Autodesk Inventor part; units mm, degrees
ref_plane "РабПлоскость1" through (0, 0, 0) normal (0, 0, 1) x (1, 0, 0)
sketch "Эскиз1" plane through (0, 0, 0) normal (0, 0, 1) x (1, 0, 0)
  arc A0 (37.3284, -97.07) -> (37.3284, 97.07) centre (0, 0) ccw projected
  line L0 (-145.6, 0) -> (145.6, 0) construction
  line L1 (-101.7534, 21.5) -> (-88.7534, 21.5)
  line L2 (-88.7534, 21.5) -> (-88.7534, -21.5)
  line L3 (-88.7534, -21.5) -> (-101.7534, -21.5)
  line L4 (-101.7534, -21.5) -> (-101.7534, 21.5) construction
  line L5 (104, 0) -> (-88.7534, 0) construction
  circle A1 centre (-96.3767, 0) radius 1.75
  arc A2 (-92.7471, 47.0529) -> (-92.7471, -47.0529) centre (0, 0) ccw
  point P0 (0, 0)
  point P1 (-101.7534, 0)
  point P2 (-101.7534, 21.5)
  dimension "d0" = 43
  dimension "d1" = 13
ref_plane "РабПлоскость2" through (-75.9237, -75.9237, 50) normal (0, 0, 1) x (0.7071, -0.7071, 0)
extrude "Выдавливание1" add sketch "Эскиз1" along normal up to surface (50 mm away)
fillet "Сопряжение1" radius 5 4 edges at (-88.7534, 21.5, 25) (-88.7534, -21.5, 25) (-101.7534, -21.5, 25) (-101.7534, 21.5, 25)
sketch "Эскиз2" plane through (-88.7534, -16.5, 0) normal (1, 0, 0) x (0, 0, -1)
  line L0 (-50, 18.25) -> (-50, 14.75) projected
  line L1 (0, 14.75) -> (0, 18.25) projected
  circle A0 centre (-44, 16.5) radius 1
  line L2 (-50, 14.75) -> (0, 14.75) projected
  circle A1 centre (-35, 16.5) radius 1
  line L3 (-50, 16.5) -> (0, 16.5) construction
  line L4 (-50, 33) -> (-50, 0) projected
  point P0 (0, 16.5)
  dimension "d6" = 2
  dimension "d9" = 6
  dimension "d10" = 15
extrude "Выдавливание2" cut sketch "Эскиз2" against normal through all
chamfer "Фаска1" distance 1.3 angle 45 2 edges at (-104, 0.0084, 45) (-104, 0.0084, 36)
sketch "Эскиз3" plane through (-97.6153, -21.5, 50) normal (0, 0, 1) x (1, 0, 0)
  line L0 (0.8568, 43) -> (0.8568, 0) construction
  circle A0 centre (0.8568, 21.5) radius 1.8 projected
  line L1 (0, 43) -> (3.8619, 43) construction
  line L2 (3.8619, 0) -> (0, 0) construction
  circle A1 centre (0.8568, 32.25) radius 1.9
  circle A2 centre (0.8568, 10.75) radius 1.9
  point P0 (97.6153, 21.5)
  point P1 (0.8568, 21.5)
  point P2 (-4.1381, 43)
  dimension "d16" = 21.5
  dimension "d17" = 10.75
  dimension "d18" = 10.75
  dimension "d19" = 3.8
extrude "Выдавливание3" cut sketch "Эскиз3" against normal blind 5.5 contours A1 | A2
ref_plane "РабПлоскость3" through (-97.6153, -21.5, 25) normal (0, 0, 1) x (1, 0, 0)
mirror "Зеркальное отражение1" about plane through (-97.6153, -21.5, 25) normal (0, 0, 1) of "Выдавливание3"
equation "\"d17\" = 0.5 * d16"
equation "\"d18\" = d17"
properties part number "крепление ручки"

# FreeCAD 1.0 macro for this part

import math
import FreeCAD as App
import Part
import Sketcher

V = App.Vector
Q = App.Units.Quantity


def edges_at(feature, points):
    """Names of the edges that pass closest to the given points."""
    edges = feature.Shape.Edges
    near = lambda p: min(range(len(edges)), key=lambda i: edges[i].distToShape(Part.Vertex(*p))[0])
    return sorted({f"Edge{near(p) + 1}" for p in points})

doc = App.newDocument("Part")
body = doc.addObject("PartDesign::Body", "Body")

sketch1 = body.newObject("Sketcher::SketchObject", "Sketch")
sketch1.AttachmentSupport = (doc.getObject("XY_Plane"), [""])
sketch1.MapMode = "FlatFace"
sketch1.addGeometry([
    Part.LineSegment(V(-88.7534, 21.5, 0), V(-101.7534, 21.5, 0)),
    Part.ArcOfCircle(Part.Circle(V(0, 0, 0), V(0, 0, 1), 104), math.radians(168.069167), math.radians(191.930833)),
    Part.LineSegment(V(-101.7534, -21.5, 0), V(-88.7534, -21.5, 0)),
    Part.LineSegment(V(-88.7534, -21.5, 0), V(-88.7534, 21.5, 0)),
    Part.Circle(V(-96.3767, 0, 0), V(0, 0, 1), 1.75),
], False)
sketch1.addConstraint([
    Sketcher.Constraint("Coincident", 0, 2, 1, 1),
    Sketcher.Constraint("Coincident", 1, 2, 2, 1),
    Sketcher.Constraint("Coincident", 2, 2, 3, 1),
    Sketcher.Constraint("Coincident", 3, 2, 0, 1),
    Sketcher.Constraint("Horizontal", 0),
    Sketcher.Constraint("Horizontal", 2),
    Sketcher.Constraint("Vertical", 3),
    Sketcher.Constraint("Coincident", 1, 3, -1, 1),
    Sketcher.Constraint("PointOnObject", 4, 3, -1),
    Sketcher.Constraint("Vertical", 0, 2, 1, 2),
    Sketcher.Constraint("DistanceX", 0, 2, 0, 1, Q("13 mm")),
    Sketcher.Constraint("DistanceY", 3, 1, 3, 2, Q("43 mm")),
    Sketcher.Constraint("Radius", 1, Q("104 mm")),
    Sketcher.Constraint("Diameter", 4, Q("3.5 mm")),
    Sketcher.Constraint("DistanceX", 4, 3, -1, 1, Q("96.3767 mm")),
])
pad1 = body.newObject("PartDesign::Pad", "Pad")
pad1.Profile = sketch1
pad1.Length = 50
doc.recompute()

fillet = body.newObject("PartDesign::Fillet", "Fillet")
fillet.Base = (pad1, edges_at(pad1, [
    (-88.753, 21.5, 25),
    (-88.753, -21.5, 25),
    (-101.753, -21.5, 25),
    (-101.753, 21.5, 25),
]))
fillet.Radius = 5

sketch2 = body.newObject("Sketcher::SketchObject", "Sketch001")
sketch2.AttachmentSupport = (doc.getObject("YZ_Plane"), [""])
sketch2.MapMode = "FlatFace"
sketch2.AttachmentOffset = App.Placement(V(0, 0, -88.7534), App.Rotation())
sketch2.addGeometry([
    Part.Circle(V(0, 44, 0), V(0, 0, 1), 1),
    Part.Circle(V(0, 35, 0), V(0, 0, 1), 1),
], False)
sketch2.addConstraint([
    Sketcher.Constraint("Equal", 0, 1),
    Sketcher.Constraint("PointOnObject", 0, 3, -2),
    Sketcher.Constraint("PointOnObject", 1, 3, -2),
    Sketcher.Constraint("Diameter", 0, Q("2 mm")),
    Sketcher.Constraint("DistanceY", -1, 1, 0, 3, Q("44 mm")),
    Sketcher.Constraint("DistanceY", -1, 1, 1, 3, Q("35 mm")),
])
pocket1 = body.newObject("PartDesign::Pocket", "Pocket")
pocket1.Profile = sketch2
pocket1.Type = "ThroughAll"
doc.recompute()

chamfer = body.newObject("PartDesign::Chamfer", "Chamfer")
chamfer.Base = (pocket1, edges_at(pocket1, [(-104, 0.008, 45), (-104, 0.008, 36)]))
chamfer.Size = 1.3

sketch3 = body.newObject("Sketcher::SketchObject", "Sketch002")
sketch3.AttachmentSupport = (doc.getObject("XY_Plane"), [""])
sketch3.MapMode = "FlatFace"
sketch3.AttachmentOffset = App.Placement(V(0, 0, 50), App.Rotation())
sketch3.addGeometry([
    Part.Circle(V(-96.7585, 10.75, 0), V(0, 0, 1), 1.9),
    Part.Circle(V(-96.7585, -10.75, 0), V(0, 0, 1), 1.9),
], False)
sketch3.addConstraint([
    Sketcher.Constraint("Equal", 0, 1),
    Sketcher.Constraint("Symmetric", 0, 3, 1, 3, -1),
    Sketcher.Constraint("Diameter", 0, Q("3.8 mm")),
    Sketcher.Constraint("DistanceY", 1, 3, 0, 3, Q("21.5 mm")),
    Sketcher.Constraint("DistanceX", 0, 3, -1, 1, Q("96.7585 mm")),
])
pocket2 = body.newObject("PartDesign::Pocket", "Pocket001")
pocket2.Profile = sketch3
pocket2.Length = 5.5
doc.recompute()

datumplane = body.newObject("PartDesign::Plane", "DatumPlane")
datumplane.AttachmentSupport = (doc.getObject("XY_Plane"), [""])
datumplane.MapMode = "FlatFace"
datumplane.AttachmentOffset = App.Placement(V(0, 0, 25), App.Rotation())
mirrored = body.newObject("PartDesign::Mirrored", "Mirrored")
mirrored.Originals = [pocket2]
mirrored.MirrorPlane = (datumplane, [""])
body.Tip = mirrored

doc.recompute()
